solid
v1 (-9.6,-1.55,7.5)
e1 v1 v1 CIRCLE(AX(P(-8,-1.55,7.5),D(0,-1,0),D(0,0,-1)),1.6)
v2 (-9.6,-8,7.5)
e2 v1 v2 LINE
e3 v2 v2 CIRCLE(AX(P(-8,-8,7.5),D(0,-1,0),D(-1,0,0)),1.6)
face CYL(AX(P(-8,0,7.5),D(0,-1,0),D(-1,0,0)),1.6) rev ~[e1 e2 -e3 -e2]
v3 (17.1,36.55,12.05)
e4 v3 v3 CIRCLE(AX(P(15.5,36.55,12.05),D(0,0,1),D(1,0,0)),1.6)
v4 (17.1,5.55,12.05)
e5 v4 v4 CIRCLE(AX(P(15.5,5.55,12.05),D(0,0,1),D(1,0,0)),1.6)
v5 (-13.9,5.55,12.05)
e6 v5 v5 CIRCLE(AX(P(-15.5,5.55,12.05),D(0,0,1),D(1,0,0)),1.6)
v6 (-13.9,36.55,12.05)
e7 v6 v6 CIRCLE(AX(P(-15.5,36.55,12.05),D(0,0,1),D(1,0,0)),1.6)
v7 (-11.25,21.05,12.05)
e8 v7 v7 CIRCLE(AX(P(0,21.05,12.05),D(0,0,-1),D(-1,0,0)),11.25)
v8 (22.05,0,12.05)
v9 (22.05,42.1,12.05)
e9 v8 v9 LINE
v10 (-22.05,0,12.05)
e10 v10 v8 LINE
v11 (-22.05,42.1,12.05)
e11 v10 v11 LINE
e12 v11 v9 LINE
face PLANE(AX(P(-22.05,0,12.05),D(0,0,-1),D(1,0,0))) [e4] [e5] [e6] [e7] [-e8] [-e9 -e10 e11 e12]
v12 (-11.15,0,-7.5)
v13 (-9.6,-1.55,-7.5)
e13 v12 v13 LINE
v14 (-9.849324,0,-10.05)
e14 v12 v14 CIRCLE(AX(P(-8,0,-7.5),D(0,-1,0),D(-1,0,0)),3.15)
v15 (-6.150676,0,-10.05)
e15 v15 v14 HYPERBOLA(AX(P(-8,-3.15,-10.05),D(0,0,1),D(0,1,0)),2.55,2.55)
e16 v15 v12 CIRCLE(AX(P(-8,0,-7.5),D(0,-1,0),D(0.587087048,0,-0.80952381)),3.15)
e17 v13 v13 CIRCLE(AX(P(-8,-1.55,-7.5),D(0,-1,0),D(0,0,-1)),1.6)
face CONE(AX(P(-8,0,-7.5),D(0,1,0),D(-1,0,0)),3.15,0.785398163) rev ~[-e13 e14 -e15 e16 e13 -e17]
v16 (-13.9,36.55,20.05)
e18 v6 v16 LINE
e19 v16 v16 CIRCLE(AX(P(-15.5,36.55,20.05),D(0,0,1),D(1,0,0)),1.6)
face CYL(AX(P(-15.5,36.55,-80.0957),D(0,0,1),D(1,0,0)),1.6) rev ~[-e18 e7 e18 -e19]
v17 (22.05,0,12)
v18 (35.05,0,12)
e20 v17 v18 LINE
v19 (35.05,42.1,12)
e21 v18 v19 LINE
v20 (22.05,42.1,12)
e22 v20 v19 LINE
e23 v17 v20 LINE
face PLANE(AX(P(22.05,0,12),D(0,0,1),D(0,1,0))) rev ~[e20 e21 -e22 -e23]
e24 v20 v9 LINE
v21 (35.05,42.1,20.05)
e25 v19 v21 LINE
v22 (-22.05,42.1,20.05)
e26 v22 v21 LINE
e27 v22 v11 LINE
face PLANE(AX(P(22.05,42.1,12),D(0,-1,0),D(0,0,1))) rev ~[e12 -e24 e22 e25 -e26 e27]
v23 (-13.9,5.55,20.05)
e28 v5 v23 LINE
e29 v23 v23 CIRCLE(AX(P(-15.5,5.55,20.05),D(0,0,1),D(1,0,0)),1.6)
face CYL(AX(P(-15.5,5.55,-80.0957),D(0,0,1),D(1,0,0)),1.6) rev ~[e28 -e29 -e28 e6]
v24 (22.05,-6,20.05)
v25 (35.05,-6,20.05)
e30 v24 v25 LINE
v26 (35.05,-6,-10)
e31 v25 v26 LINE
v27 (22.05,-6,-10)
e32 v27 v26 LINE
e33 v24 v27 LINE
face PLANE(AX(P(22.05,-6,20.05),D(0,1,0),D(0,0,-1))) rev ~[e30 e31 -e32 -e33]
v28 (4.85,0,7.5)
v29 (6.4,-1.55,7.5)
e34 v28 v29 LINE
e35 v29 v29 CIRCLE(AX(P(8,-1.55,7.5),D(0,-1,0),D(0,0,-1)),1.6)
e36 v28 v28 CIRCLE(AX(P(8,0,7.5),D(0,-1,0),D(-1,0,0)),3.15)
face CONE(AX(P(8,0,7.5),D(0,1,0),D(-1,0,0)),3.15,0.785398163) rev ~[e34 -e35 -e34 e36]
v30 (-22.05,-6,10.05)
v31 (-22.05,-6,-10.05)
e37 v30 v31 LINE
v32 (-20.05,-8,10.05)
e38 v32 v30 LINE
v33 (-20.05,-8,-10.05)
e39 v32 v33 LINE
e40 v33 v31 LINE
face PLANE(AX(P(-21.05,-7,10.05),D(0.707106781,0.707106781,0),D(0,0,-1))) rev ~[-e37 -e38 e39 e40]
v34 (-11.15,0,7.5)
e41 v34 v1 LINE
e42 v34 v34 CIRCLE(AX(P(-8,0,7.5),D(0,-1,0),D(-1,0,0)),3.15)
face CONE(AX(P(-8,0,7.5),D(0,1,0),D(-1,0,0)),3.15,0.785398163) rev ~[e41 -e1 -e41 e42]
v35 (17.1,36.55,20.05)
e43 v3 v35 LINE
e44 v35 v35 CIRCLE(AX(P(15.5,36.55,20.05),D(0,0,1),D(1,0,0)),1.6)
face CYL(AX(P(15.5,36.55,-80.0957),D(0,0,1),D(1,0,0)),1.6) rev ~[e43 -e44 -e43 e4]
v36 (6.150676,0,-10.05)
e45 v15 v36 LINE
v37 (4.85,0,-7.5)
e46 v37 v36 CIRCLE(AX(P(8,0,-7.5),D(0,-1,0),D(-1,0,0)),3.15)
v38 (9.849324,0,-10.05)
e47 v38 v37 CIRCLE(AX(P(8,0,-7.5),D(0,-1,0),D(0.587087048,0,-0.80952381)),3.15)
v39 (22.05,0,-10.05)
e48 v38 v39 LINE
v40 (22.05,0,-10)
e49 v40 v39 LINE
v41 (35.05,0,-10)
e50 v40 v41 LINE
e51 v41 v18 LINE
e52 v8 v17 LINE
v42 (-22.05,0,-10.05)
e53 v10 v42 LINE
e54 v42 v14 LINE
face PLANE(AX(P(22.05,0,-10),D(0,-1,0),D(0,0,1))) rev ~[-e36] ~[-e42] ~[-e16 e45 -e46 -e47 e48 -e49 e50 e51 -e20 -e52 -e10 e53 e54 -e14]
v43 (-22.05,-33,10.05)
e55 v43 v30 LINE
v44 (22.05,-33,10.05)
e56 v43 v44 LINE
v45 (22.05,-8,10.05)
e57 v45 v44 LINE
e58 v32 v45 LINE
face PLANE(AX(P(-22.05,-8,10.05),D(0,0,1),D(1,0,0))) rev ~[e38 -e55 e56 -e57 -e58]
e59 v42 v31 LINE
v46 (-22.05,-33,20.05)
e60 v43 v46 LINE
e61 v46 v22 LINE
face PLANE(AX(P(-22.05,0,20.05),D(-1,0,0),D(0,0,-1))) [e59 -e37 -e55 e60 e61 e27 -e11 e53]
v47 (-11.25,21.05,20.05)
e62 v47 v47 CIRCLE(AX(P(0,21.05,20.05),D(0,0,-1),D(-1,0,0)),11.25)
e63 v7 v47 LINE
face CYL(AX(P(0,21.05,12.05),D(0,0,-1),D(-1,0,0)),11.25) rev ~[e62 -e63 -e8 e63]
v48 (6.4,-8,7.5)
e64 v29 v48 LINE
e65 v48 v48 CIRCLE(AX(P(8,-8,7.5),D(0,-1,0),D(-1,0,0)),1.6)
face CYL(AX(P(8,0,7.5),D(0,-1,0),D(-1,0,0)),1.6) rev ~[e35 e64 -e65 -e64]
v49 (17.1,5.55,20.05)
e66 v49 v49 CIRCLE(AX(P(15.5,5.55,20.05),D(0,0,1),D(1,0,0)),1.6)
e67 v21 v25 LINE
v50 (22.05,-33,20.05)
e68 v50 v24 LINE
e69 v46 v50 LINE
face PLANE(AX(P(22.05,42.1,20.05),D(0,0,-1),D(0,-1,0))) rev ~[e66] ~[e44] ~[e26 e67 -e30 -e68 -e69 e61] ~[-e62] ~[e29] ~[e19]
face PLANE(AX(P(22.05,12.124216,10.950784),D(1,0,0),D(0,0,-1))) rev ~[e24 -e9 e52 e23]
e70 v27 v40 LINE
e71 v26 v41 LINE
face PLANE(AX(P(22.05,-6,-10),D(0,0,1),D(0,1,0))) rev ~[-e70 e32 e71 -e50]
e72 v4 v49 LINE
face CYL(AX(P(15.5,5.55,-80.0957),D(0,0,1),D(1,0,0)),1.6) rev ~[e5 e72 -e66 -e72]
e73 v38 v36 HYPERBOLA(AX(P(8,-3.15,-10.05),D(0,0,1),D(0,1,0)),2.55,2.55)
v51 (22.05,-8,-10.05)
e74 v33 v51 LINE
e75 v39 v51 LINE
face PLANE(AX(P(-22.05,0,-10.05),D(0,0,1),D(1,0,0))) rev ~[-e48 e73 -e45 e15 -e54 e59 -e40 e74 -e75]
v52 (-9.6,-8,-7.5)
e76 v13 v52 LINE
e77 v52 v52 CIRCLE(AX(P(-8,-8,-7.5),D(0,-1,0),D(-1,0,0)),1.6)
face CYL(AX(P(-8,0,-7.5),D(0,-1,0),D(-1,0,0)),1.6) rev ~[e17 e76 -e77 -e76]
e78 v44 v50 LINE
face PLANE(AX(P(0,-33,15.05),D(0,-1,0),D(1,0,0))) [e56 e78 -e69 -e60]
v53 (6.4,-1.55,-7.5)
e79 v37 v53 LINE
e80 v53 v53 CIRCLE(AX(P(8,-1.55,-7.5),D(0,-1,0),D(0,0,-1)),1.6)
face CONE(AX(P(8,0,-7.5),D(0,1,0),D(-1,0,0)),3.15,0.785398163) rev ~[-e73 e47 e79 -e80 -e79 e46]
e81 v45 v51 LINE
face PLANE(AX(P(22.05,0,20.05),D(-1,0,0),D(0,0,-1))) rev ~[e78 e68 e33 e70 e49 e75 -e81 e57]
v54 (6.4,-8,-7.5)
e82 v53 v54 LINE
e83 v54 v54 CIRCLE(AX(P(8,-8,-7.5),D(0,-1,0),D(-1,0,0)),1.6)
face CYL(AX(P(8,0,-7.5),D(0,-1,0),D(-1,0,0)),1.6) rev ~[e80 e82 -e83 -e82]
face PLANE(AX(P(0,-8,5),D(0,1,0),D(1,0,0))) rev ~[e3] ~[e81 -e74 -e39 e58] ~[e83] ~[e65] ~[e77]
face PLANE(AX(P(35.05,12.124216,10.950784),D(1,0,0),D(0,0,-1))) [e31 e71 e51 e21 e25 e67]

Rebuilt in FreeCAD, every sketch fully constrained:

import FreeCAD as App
import Part
import Sketcher


def edges_at(feature, points):
    """Names of the edges that pass closest to the given points."""
    edges = feature.Shape.Edges
    near = lambda p: min(range(len(edges)), key=lambda i: edges[i].distToShape(Part.Vertex(*p))[0])
    return sorted({f"Edge{near(p) + 1}" for p in points})

doc = App.newDocument("Part")
body = doc.addObject("PartDesign::Body", "Body")

sketch1 = body.newObject("Sketcher::SketchObject", "Sketch")
sketch1.AttachmentSupport = (doc.getObject("XZ_Plane"), [""])
sketch1.MapMode = "FlatFace"
sketch1.addGeometry(Part.LineSegment(App.Vector(-22.05, -10.05, 0), App.Vector(-22.05, 20.05, 0)), False)
sketch1.addGeometry(Part.LineSegment(App.Vector(-22.05, 20.05, 0), App.Vector(22.05, 20.05, 0)), False)
sketch1.addGeometry(Part.LineSegment(App.Vector(22.05, 20.05, 0), App.Vector(22.05, -10.05, 0)), False)
sketch1.addGeometry(Part.LineSegment(App.Vector(22.05, -10.05, 0), App.Vector(-22.05, -10.05, 0)), False)
sketch1.addConstraint(Sketcher.Constraint("Coincident", 0, 2, 1, 1))
sketch1.addConstraint(Sketcher.Constraint("Coincident", 1, 2, 2, 1))
sketch1.addConstraint(Sketcher.Constraint("Coincident", 2, 2, 3, 1))
sketch1.addConstraint(Sketcher.Constraint("Coincident", 3, 2, 0, 1))
sketch1.addConstraint(Sketcher.Constraint("Vertical", 0))
sketch1.addConstraint(Sketcher.Constraint("Horizontal", 1))
sketch1.addConstraint(Sketcher.Constraint("Vertical", 2))
sketch1.addConstraint(Sketcher.Constraint("Horizontal", 3))
sketch1.addConstraint(Sketcher.Constraint("DistanceX", 1, 1, 1, 2, 44.1))
sketch1.addConstraint(Sketcher.Constraint("DistanceY", 0, 1, 0, 2, 30.1))
sketch1.addConstraint(Sketcher.Constraint("DistanceX", 0, 2, -1, 1, 22.05))
sketch1.addConstraint(Sketcher.Constraint("DistanceY", -1, 1, 0, 2, 20.05))
pad1 = body.newObject("PartDesign::Pad", "Pad")
pad1.Profile = sketch1
pad1.Length = 8

sketch2 = body.newObject("Sketcher::SketchObject", "Sketch001")
sketch2.AttachmentSupport = (doc.getObject("XZ_Plane"), [""])
sketch2.MapMode = "FlatFace"
sketch2.AttachmentOffset = App.Placement(App.Vector(0, 0, 8), App.Rotation())
sketch2.addGeometry(Part.LineSegment(App.Vector(-22.05, 20.05, 0), App.Vector(-22.05, 10.05, 0)), False)
sketch2.addGeometry(Part.LineSegment(App.Vector(-22.05, 10.05, 0), App.Vector(22.05, 10.05, 0)), False)
sketch2.addGeometry(Part.LineSegment(App.Vector(22.05, 10.05, 0), App.Vector(22.05, 20.05, 0)), False)
sketch2.addGeometry(Part.LineSegment(App.Vector(22.05, 20.05, 0), App.Vector(-22.05, 20.05, 0)), False)
sketch2.addConstraint(Sketcher.Constraint("Coincident", 0, 2, 1, 1))
sketch2.addConstraint(Sketcher.Constraint("Coincident", 1, 2, 2, 1))
sketch2.addConstraint(Sketcher.Constraint("Coincident", 2, 2, 3, 1))
sketch2.addConstraint(Sketcher.Constraint("Coincident", 3, 2, 0, 1))
sketch2.addConstraint(Sketcher.Constraint("Vertical", 0))
sketch2.addConstraint(Sketcher.Constraint("Horizontal", 1))
sketch2.addConstraint(Sketcher.Constraint("Vertical", 2))
sketch2.addConstraint(Sketcher.Constraint("Horizontal", 3))
sketch2.addConstraint(Sketcher.Constraint("DistanceY", 0, 2, 0, 1, 10.0))
sketch2.addConstraint(Sketcher.Constraint("DistanceX", 1, 1, 1, 2, 44.1))
sketch2.addConstraint(Sketcher.Constraint("DistanceX", 0, 2, -1, 1, 22.05))
sketch2.addConstraint(Sketcher.Constraint("DistanceY", -1, 1, 0, 2, 10.05))
pad2 = body.newObject("PartDesign::Pad", "Pad001")
pad2.Profile = sketch2
pad2.Length = 25

sketch3 = body.newObject("Sketcher::SketchObject", "Sketch002")
sketch3.AttachmentSupport = (doc.getObject("XZ_Plane"), [""])
sketch3.MapMode = "FlatFace"
sketch3.addGeometry(Part.Circle(App.Vector(8, 7.5, 0), App.Vector(0, 0, 1), 1.6), False)
sketch3.addGeometry(Part.Circle(App.Vector(-8, 7.5, 0), App.Vector(0, 0, 1), 1.6), False)
sketch3.addGeometry(Part.Circle(App.Vector(8, -7.5, 0), App.Vector(0, 0, 1), 1.6), False)
sketch3.addGeometry(Part.Circle(App.Vector(-8, -7.5, 0), App.Vector(0, 0, 1), 1.6), False)
sketch3.addConstraint(Sketcher.Constraint("Equal", 0, 1))
sketch3.addConstraint(Sketcher.Constraint("Equal", 1, 2))
sketch3.addConstraint(Sketcher.Constraint("Equal", 2, 3))
sketch3.addConstraint(Sketcher.Constraint("Symmetric", 1, 3, 2, 3, -1, 1))
sketch3.addConstraint(Sketcher.Constraint("Symmetric", 0, 3, 3, 3, -1, 1))
sketch3.addConstraint(Sketcher.Constraint("Symmetric", 0, 3, 1, 3, -2))
sketch3.addConstraint(Sketcher.Constraint("Diameter", 0, 3.2))
sketch3.addConstraint(Sketcher.Constraint("DistanceX", -1, 1, 0, 3, 8.0))
sketch3.addConstraint(Sketcher.Constraint("DistanceY", 2, 3, 0, 3, 15.0))
doc.recompute()
hole = body.newObject("PartDesign::Hole", "Hole")
hole.Profile = sketch3
hole.ThreadType = "None"
hole.Diameter = 3.2
hole.DepthType = "ThroughAll"
hole.HoleCutType = "Countersink"
hole.HoleCutDiameter = 6.3
hole.HoleCutCountersinkAngle = 90
hole.Reversed = True

sketch4 = body.newObject("Sketcher::SketchObject", "Sketch003")
sketch4.AttachmentSupport = (doc.getObject("XZ_Plane"), [""])
sketch4.MapMode = "FlatFace"
sketch4.addGeometry(Part.LineSegment(App.Vector(-22.05, 12.05, 0), App.Vector(-22.05, 20.05, 0)), False)
sketch4.addGeometry(Part.LineSegment(App.Vector(-22.05, 20.05, 0), App.Vector(22.05, 20.05, 0)), False)
sketch4.addGeometry(Part.LineSegment(App.Vector(22.05, 20.05, 0), App.Vector(22.05, 12.05, 0)), False)
sketch4.addGeometry(Part.LineSegment(App.Vector(22.05, 12.05, 0), App.Vector(-22.05, 12.05, 0)), False)
sketch4.addConstraint(Sketcher.Constraint("Coincident", 0, 2, 1, 1))
sketch4.addConstraint(Sketcher.Constraint("Coincident", 1, 2, 2, 1))
sketch4.addConstraint(Sketcher.Constraint("Coincident", 2, 2, 3, 1))
sketch4.addConstraint(Sketcher.Constraint("Coincident", 3, 2, 0, 1))
sketch4.addConstraint(Sketcher.Constraint("Vertical", 0))
sketch4.addConstraint(Sketcher.Constraint("Horizontal", 1))
sketch4.addConstraint(Sketcher.Constraint("Vertical", 2))
sketch4.addConstraint(Sketcher.Constraint("Horizontal", 3))
sketch4.addConstraint(Sketcher.Constraint("DistanceY", 0, 1, 0, 2, 8.0))
sketch4.addConstraint(Sketcher.Constraint("DistanceX", 1, 1, 1, 2, 44.1))
sketch4.addConstraint(Sketcher.Constraint("DistanceX", 0, 2, -1, 1, 22.05))
sketch4.addConstraint(Sketcher.Constraint("DistanceY", -1, 1, 0, 2, 20.05))
pad3 = body.newObject("PartDesign::Pad", "Pad002")
pad3.Profile = sketch4
pad3.Length = 42.1
pad3.Reversed = True

sketch5 = body.newObject("Sketcher::SketchObject", "Sketch004")
sketch5.AttachmentSupport = (doc.getObject("XY_Plane"), [""])
sketch5.MapMode = "FlatFace"
sketch5.AttachmentOffset = App.Placement(App.Vector(0, 0, 12.05), App.Rotation())
sketch5.addGeometry(Part.Circle(App.Vector(0, 21.05, 0), App.Vector(0, 0, 1), 11.25), False)
sketch5.addConstraint(Sketcher.Constraint("PointOnObject", 0, 3, -2))
sketch5.addConstraint(Sketcher.Constraint("Diameter", 0, 22.5))
sketch5.addConstraint(Sketcher.Constraint("DistanceY", -1, 1, 0, 3, 21.05))
pocket1 = body.newObject("PartDesign::Pocket", "Pocket")
pocket1.Profile = sketch5
pocket1.Length = 42
pocket1.Reversed = True

sketch6 = body.newObject("Sketcher::SketchObject", "Sketch005")
sketch6.AttachmentSupport = (doc.getObject("XY_Plane"), [""])
sketch6.MapMode = "FlatFace"
sketch6.AttachmentOffset = App.Placement(App.Vector(0, 0, 12.05), App.Rotation())
sketch6.addGeometry(Part.Circle(App.Vector(-15.5, 5.55, 0), App.Vector(0, 0, 1), 1.6), False)
sketch6.addGeometry(Part.Circle(App.Vector(15.5, 5.55, 0), App.Vector(0, 0, 1), 1.6), False)
sketch6.addGeometry(Part.Circle(App.Vector(-15.5, 36.55, 0), App.Vector(0, 0, 1), 1.6), False)
sketch6.addGeometry(Part.Circle(App.Vector(15.5, 36.55, 0), App.Vector(0, 0, 1), 1.6), False)
sketch6.addConstraint(Sketcher.Constraint("Equal", 0, 1))
sketch6.addConstraint(Sketcher.Constraint("Equal", 1, 2))
sketch6.addConstraint(Sketcher.Constraint("Equal", 2, 3))
sketch6.addConstraint(Sketcher.Constraint("Symmetric", 0, 3, 1, 3, -2))
sketch6.addConstraint(Sketcher.Constraint("Symmetric", 2, 3, 3, 3, -2))
sketch6.addConstraint(Sketcher.Constraint("Vertical", 0, 3, 2, 3))
sketch6.addConstraint(Sketcher.Constraint("Diameter", 0, 3.2))
sketch6.addConstraint(Sketcher.Constraint("DistanceX", 0, 3, 1, 3, 31.0))
sketch6.addConstraint(Sketcher.Constraint("DistanceY", 0, 3, 2, 3, 31.0))
sketch6.addConstraint(Sketcher.Constraint("DistanceY", -1, 1, 0, 3, 5.55))
doc.recompute()
hole2 = body.newObject("PartDesign::Hole", "Hole001")
hole2.Profile = sketch6
hole2.ThreadType = "None"
hole2.Diameter = 3.2
hole2.DepthType = "ThroughAll"
hole2.Reversed = True

sketch7 = body.newObject("Sketcher::SketchObject", "Sketch006")
sketch7.AttachmentSupport = (doc.getObject("YZ_Plane"), [""])
sketch7.MapMode = "FlatFace"
sketch7.AttachmentOffset = App.Placement(App.Vector(0, 0, 22.05), App.Rotation())
sketch7.addGeometry(Part.LineSegment(App.Vector(0, -10, 0), App.Vector(0, 12, 0)), False)
sketch7.addGeometry(Part.LineSegment(App.Vector(0, 12, 0), App.Vector(42.1, 12, 0)), False)
sketch7.addGeometry(Part.LineSegment(App.Vector(42.1, 12, 0), App.Vector(42.1, 20.05, 0)), False)
sketch7.addGeometry(Part.LineSegment(App.Vector(42.1, 20.05, 0), App.Vector(-6, 20.05, 0)), False)
sketch7.addGeometry(Part.LineSegment(App.Vector(-6, 20.05, 0), App.Vector(-6, -10, 0)), False)
sketch7.addGeometry(Part.LineSegment(App.Vector(-6, -10, 0), App.Vector(0, -10, 0)), False)
sketch7.addConstraint(Sketcher.Constraint("Coincident", 0, 2, 1, 1))
sketch7.addConstraint(Sketcher.Constraint("Coincident", 1, 2, 2, 1))
sketch7.addConstraint(Sketcher.Constraint("Coincident", 2, 2, 3, 1))
sketch7.addConstraint(Sketcher.Constraint("Coincident", 3, 2, 4, 1))
sketch7.addConstraint(Sketcher.Constraint("Coincident", 4, 2, 5, 1))
sketch7.addConstraint(Sketcher.Constraint("Coincident", 5, 2, 0, 1))
sketch7.addConstraint(Sketcher.Constraint("Vertical", 0))
sketch7.addConstraint(Sketcher.Constraint("Horizontal", 1))
sketch7.addConstraint(Sketcher.Constraint("Vertical", 2))
sketch7.addConstraint(Sketcher.Constraint("Horizontal", 3))
sketch7.addConstraint(Sketcher.Constraint("Vertical", 4))
sketch7.addConstraint(Sketcher.Constraint("Horizontal", 5))
sketch7.addConstraint(Sketcher.Constraint("PointOnObject", 0, 2, -2))
sketch7.addConstraint(Sketcher.Constraint("DistanceX", 5, 1, 5, 2, 6.0))
sketch7.addConstraint(Sketcher.Constraint("DistanceY", 0, 1, 0, 2, 22.0))
sketch7.addConstraint(Sketcher.Constraint("DistanceX", 1, 1, 1, 2, 42.1))
sketch7.addConstraint(Sketcher.Constraint("DistanceY", -1, 1, 0, 2, 12.0))
sketch7.addConstraint(Sketcher.Constraint("DistanceY", 2, 1, 2, 2, 8.05))
pad4 = body.newObject("PartDesign::Pad", "Pad003")
pad4.Profile = sketch7
pad4.Length = 13
doc.recompute()

chamfer = body.newObject("PartDesign::Chamfer", "Chamfer")
chamfer.Base = (pad4, edges_at(pad4, [(-22.05, -8, 0)]))
chamfer.Size = 2

doc.recompute()
